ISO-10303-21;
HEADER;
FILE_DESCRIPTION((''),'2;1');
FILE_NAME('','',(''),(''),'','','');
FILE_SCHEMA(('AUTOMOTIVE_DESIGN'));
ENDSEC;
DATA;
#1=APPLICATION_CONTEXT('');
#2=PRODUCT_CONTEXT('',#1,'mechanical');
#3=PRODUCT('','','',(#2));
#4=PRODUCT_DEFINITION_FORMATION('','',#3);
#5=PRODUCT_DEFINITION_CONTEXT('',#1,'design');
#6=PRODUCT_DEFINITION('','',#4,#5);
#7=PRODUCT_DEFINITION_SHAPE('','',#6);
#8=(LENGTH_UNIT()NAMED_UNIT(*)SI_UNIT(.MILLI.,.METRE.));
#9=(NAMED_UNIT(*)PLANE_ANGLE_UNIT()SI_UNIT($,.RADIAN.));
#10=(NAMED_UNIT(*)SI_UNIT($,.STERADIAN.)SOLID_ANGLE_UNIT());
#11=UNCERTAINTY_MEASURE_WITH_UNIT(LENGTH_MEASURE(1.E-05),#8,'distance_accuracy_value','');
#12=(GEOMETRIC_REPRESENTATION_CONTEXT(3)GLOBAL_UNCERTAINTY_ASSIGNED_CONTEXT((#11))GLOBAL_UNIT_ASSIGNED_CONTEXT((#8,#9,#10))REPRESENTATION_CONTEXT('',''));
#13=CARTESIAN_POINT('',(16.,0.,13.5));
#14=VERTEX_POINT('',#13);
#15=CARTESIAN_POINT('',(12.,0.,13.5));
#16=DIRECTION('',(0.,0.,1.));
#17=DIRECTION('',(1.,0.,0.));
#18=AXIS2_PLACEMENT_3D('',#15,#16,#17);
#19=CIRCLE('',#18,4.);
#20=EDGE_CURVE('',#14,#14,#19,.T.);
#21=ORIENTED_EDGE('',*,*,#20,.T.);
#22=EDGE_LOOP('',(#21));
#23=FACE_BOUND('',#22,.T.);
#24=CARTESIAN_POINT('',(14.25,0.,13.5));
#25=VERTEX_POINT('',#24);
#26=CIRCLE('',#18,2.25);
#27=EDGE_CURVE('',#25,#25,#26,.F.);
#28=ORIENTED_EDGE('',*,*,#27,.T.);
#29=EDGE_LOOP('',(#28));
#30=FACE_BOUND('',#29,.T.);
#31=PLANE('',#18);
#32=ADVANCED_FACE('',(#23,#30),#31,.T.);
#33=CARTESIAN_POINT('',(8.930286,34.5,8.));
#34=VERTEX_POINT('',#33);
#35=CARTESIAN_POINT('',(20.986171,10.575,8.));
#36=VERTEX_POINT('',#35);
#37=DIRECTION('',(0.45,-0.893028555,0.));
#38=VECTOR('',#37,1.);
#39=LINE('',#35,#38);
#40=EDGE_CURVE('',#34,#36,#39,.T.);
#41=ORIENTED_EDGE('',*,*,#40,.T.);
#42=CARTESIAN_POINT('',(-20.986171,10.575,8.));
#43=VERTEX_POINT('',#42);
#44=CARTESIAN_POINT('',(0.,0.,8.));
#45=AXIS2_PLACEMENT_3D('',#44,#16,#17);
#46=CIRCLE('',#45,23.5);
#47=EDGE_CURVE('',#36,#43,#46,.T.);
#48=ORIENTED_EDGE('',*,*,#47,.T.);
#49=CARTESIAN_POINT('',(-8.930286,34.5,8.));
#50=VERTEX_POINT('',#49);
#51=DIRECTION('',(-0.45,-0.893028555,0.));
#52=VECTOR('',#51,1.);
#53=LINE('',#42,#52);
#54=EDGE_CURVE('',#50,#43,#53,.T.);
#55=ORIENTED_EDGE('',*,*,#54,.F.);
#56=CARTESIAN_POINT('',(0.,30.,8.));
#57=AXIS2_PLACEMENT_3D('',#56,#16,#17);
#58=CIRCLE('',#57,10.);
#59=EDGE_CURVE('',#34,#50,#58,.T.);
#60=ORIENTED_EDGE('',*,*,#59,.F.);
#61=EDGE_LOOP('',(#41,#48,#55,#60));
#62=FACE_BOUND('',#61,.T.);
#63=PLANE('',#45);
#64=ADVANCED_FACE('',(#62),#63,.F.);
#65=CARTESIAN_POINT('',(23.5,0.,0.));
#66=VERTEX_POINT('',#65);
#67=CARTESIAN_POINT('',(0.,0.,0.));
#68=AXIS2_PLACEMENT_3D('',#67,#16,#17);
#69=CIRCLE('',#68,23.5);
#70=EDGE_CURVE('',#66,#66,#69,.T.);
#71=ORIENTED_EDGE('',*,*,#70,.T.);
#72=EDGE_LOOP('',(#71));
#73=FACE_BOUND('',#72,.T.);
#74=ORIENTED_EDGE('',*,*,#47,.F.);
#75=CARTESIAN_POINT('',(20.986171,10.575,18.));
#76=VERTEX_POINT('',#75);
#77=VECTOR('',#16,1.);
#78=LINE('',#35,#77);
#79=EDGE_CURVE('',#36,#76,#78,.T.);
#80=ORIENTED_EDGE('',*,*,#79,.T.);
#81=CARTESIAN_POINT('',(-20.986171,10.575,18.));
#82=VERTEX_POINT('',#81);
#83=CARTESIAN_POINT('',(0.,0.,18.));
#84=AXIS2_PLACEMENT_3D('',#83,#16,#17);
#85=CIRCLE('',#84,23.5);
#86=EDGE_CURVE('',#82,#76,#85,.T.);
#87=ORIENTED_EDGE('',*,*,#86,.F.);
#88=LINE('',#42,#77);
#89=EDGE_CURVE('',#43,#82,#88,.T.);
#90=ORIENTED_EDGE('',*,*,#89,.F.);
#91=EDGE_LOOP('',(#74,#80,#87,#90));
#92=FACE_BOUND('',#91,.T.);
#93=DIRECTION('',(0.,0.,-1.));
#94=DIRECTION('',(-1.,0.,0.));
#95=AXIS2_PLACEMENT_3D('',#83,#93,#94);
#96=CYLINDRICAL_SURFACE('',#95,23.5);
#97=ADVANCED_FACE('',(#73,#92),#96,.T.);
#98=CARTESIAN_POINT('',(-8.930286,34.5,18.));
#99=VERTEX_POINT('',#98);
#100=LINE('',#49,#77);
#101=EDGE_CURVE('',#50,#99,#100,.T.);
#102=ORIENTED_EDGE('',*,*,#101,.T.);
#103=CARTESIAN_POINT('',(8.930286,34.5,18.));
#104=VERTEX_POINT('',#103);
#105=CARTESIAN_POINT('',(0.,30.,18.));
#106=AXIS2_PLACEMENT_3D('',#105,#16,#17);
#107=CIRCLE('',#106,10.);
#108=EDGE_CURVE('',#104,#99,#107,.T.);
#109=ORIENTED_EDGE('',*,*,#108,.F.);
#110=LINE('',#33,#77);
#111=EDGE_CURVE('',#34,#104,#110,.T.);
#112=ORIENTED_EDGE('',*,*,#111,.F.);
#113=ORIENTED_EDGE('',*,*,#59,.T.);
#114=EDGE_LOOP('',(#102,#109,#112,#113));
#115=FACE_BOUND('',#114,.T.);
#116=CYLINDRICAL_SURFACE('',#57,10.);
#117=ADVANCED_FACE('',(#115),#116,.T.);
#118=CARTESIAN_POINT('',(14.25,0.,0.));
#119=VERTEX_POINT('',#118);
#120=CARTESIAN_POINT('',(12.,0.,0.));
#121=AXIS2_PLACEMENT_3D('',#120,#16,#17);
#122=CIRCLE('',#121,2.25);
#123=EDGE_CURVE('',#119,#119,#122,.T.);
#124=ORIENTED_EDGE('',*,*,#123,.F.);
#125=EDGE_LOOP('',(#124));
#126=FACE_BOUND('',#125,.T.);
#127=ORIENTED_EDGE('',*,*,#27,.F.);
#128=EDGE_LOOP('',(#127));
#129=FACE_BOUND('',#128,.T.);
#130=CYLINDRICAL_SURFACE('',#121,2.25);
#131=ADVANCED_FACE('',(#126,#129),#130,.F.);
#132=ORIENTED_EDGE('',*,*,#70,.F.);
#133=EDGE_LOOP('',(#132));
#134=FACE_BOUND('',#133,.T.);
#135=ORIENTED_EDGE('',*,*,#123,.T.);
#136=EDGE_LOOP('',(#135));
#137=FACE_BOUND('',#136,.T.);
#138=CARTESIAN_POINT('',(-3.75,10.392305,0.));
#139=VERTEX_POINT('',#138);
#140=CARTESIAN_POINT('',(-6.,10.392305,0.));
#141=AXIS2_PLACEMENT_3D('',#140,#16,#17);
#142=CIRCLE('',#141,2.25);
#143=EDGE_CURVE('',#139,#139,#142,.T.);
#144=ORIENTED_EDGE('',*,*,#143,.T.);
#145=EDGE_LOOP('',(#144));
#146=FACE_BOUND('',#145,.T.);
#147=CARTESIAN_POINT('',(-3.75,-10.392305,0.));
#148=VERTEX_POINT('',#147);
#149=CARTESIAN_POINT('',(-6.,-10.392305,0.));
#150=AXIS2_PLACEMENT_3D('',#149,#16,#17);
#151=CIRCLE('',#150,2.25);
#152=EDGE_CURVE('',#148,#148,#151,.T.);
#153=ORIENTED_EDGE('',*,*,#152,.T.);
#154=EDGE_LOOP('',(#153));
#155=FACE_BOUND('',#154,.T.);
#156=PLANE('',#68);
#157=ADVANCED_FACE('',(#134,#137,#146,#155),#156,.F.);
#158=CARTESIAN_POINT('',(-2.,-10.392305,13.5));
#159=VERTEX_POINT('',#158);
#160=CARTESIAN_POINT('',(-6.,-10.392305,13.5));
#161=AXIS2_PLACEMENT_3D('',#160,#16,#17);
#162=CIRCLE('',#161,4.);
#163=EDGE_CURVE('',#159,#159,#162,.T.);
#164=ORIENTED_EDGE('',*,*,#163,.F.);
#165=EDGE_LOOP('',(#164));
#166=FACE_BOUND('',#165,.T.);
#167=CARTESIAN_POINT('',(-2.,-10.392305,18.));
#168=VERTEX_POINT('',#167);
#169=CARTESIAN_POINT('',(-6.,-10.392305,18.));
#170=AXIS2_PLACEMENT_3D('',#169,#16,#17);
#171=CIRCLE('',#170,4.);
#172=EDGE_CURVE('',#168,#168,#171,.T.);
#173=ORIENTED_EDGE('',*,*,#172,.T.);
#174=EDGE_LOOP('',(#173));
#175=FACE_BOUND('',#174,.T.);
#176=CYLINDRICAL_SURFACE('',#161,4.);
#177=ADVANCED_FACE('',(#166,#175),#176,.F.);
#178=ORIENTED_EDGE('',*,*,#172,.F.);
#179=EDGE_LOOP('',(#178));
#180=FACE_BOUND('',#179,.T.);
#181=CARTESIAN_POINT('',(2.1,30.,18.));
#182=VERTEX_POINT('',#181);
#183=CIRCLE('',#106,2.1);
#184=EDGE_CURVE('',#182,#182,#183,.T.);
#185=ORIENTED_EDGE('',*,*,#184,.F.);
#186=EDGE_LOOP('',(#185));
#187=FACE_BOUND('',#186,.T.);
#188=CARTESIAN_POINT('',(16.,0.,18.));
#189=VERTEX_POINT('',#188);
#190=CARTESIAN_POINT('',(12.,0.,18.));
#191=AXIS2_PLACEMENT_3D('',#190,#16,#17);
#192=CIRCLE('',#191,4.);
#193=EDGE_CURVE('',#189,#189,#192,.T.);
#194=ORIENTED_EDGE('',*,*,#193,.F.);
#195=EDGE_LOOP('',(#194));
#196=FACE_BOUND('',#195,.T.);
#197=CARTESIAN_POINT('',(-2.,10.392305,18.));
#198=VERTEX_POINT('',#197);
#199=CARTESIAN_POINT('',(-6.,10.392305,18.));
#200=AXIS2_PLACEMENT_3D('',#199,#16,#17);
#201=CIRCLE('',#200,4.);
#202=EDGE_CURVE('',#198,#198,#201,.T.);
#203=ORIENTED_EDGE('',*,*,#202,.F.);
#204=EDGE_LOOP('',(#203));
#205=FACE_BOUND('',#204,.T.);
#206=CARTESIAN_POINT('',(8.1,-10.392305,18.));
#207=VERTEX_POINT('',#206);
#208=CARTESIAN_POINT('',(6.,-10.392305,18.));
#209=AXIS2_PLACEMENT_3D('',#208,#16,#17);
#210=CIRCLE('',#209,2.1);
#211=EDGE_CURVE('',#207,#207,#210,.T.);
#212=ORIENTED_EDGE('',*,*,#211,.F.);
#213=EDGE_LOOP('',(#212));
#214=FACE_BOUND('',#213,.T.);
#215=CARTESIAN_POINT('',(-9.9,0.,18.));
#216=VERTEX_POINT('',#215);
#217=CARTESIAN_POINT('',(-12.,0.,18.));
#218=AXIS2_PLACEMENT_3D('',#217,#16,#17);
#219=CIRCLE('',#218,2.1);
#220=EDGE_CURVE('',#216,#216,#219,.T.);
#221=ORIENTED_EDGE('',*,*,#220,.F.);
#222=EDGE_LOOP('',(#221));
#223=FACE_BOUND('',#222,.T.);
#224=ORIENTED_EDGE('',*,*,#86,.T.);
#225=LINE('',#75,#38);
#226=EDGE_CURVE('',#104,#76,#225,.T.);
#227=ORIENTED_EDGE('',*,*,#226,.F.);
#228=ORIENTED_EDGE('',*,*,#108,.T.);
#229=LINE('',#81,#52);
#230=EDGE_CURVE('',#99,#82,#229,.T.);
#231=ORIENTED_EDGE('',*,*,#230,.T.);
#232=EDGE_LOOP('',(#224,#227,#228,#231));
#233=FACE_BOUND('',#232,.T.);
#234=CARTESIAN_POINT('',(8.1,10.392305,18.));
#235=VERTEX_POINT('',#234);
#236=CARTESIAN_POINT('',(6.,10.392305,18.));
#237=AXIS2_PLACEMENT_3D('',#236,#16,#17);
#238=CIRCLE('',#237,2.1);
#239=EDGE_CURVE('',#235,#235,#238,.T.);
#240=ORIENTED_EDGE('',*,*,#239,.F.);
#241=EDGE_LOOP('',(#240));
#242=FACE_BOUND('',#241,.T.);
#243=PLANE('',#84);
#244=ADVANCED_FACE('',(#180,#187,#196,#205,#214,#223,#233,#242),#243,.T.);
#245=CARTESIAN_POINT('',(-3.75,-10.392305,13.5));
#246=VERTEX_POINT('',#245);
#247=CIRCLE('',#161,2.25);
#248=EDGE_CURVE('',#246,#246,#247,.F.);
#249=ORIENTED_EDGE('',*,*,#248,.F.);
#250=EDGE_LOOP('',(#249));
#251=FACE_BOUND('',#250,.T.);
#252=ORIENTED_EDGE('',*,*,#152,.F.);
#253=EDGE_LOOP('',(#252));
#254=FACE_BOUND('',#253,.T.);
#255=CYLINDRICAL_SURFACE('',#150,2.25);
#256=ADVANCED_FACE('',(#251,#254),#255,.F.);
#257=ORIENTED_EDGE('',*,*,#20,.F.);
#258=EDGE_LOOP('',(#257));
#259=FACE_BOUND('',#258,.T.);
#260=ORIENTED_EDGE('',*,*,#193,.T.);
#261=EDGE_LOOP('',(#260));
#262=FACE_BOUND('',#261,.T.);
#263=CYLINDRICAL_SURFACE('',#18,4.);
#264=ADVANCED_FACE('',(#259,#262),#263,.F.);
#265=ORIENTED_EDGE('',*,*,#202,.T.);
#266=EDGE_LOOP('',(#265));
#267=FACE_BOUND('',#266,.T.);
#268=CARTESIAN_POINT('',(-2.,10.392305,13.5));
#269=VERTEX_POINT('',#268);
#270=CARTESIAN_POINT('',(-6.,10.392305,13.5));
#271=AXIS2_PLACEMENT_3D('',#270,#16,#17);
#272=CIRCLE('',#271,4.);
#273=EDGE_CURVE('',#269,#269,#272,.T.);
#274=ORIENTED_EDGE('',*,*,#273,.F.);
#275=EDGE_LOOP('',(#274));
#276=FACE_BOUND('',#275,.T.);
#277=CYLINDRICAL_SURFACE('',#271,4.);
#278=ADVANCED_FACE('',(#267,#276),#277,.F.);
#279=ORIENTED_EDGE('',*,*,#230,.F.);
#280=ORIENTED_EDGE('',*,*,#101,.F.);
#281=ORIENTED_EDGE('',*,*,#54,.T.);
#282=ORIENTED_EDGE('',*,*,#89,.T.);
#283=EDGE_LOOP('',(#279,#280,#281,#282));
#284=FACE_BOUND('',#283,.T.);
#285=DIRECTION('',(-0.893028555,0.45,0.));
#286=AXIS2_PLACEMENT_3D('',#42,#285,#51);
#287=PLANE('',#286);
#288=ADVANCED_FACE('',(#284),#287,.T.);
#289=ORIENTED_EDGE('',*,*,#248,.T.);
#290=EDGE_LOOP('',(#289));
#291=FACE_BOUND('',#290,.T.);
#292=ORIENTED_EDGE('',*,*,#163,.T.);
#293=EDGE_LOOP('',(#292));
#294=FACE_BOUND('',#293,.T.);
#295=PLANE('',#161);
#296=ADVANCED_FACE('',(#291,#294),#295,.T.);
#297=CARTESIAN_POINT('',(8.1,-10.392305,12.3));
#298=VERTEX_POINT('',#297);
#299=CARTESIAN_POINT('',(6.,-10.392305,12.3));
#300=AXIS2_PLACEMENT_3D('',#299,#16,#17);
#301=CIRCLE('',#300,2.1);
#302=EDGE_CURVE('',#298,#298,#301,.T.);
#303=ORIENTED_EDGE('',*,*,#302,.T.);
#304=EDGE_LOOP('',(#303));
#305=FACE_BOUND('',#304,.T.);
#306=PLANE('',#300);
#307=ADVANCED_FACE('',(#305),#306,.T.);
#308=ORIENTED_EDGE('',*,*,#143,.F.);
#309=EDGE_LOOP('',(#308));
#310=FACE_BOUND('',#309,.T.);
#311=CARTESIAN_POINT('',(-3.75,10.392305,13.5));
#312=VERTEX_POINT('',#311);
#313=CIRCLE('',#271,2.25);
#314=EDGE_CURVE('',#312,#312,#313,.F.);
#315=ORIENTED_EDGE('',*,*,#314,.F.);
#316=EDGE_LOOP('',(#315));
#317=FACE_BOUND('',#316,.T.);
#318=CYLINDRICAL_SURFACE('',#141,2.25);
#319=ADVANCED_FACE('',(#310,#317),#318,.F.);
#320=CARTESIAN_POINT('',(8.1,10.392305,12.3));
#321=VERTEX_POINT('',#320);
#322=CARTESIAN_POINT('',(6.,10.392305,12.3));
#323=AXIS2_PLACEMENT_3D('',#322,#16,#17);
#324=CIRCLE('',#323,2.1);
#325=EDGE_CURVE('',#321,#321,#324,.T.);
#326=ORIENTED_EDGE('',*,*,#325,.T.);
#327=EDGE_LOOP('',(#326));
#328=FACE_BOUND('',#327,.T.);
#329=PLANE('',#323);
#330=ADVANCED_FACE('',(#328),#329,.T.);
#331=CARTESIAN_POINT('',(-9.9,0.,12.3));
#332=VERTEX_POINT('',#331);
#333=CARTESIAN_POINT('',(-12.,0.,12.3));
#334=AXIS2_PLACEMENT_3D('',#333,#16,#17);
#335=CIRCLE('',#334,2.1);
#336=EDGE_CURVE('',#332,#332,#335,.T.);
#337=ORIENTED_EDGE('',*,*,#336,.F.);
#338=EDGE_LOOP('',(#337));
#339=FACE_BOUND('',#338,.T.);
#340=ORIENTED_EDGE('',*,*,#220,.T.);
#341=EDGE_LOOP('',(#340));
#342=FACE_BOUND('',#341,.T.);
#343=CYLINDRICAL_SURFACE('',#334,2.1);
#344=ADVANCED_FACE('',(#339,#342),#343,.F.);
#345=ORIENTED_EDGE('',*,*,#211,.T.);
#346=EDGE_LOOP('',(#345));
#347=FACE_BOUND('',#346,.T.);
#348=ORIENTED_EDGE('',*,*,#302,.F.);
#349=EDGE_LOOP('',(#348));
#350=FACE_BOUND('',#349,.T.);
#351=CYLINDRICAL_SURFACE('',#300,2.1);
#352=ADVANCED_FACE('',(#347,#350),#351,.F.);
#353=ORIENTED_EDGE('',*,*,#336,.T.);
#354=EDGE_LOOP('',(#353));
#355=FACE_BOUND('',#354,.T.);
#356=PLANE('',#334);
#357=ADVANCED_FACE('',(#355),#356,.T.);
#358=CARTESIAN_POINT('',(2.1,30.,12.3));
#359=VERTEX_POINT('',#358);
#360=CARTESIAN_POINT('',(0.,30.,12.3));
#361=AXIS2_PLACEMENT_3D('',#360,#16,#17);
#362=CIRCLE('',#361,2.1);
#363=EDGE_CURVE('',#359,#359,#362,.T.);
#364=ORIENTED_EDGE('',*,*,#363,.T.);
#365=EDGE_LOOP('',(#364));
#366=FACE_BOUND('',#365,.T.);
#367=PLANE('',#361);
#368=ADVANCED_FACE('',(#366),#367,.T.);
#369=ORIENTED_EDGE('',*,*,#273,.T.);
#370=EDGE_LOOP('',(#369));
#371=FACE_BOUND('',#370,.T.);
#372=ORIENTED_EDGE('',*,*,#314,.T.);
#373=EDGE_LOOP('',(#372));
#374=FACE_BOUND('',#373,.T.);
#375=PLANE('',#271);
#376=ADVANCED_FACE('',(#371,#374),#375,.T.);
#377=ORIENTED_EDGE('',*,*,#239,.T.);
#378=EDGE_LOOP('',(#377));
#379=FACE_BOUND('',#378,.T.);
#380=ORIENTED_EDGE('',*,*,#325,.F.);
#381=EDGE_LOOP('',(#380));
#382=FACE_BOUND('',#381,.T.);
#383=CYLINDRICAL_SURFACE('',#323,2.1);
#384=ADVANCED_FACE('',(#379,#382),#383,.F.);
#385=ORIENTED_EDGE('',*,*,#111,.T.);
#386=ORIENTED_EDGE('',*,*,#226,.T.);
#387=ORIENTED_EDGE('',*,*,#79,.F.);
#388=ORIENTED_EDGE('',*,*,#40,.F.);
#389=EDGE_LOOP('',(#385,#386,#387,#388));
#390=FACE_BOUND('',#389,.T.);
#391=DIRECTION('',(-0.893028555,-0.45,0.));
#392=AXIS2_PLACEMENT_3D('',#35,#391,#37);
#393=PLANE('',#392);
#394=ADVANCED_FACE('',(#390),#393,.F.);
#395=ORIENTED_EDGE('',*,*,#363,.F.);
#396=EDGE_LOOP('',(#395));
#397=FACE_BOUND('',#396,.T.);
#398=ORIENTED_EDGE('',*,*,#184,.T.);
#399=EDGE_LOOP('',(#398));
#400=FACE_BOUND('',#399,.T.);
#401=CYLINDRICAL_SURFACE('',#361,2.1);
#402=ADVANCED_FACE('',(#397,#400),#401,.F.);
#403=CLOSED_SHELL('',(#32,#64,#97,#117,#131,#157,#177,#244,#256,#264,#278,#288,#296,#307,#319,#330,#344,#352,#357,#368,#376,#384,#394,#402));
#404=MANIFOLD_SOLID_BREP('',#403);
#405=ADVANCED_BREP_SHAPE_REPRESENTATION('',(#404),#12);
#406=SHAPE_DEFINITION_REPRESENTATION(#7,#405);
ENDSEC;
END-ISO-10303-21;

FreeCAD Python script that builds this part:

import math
import FreeCAD as App
import Part
import Sketcher
from FreeCAD import Vector
Q = App.Units.Quantity

doc = App.newDocument("Part")
body = doc.addObject("PartDesign::Body", "Body")

# Sketch on XY plane
sketch1 = body.newObject("Sketcher::SketchObject", "Sketch")
sketch1.AttachmentSupport = (doc.getObject("XY_Plane"), [""])
sketch1.MapMode = "FlatFace"
sketch1.addGeometry(Part.Circle(Vector(0, 0, 0), Vector(0, 0, 1), 24), False)
sketch1.addConstraint([
    Sketcher.Constraint("Coincident", 0, 3, -1, 1),
    Sketcher.Constraint("Diameter", 0, Q("47 mm")),
])
pad1 = body.newObject("PartDesign::Pad", "Pad")
pad1.Profile = sketch1
pad1.Length = 18

# Sketch on XY plane
sketch2 = body.newObject("Sketcher::SketchObject", "Sketch001")
sketch2.AttachmentSupport = (doc.getObject("XY_Plane"), [""])
sketch2.MapMode = "FlatFace"
sketch2.AttachmentOffset = App.Placement(Vector(0, 0, 8), App.Rotation())
sketch2.addGeometry([
    Part.ArcOfCircle(Part.Circle(Vector(0, 0, 0), Vector(0, 0, 1), 24), math.radians(27), math.radians(90)),  # 0
    Part.LineSegment(Vector(21, 11, 0), Vector(9, 34, 0)),  # 1
    Part.ArcOfCircle(Part.Circle(Vector(0, 30, 0), Vector(0, 0, 1), 10), math.radians(27), math.radians(153)),  # 2
    Part.LineSegment(Vector(-9, 34, 0), Vector(-21, 11, 0)),  # 3
    Part.ArcOfCircle(Part.Circle(Vector(0, 0, 0), Vector(0, 0, 1), 24), math.radians(90), math.radians(153)),  # 4
], False)
sketch2.addConstraint([
    Sketcher.Constraint("Tangent", 0, 1, 1, 1),
    Sketcher.Constraint("Tangent", 1, 2, 2, 1),
    Sketcher.Constraint("Tangent", 2, 2, 3, 1),
    Sketcher.Constraint("Tangent", 3, 2, 4, 2),
    Sketcher.Constraint("Tangent", 4, 1, 0, 2),
    Sketcher.Constraint("Coincident", 0, 3, -1, 1),
    Sketcher.Constraint("Equal", 0, 4),
    Sketcher.Constraint("PointOnObject", 2, 3, -2),
    Sketcher.Constraint("PointOnObject", 4, 1, -2),
    Sketcher.Constraint("Radius", 2, Q("10 mm")),
    Sketcher.Constraint("Radius", 0, Q("23.5 mm")),
    Sketcher.Constraint("DistanceY", -1, 1, 2, 3, Q("30 mm")),
])
pad2 = body.newObject("PartDesign::Pad", "Pad001")
pad2.Profile = sketch2
pad2.Length = 10

# Sketch on XY plane
sketch3 = body.newObject("Sketcher::SketchObject", "Sketch002")
sketch3.AttachmentSupport = (doc.getObject("XY_Plane"), [""])
sketch3.MapMode = "FlatFace"
sketch3.AttachmentOffset = App.Placement(Vector(0, 0, 18), App.Rotation())
sketch3.addGeometry([
    Part.Circle(Vector(12, 0, 0), Vector(0, 0, 1), 2.2),
    Part.Circle(Vector(-6, -10.4, 0), Vector(0, 0, 1), 2.2),
    Part.Circle(Vector(-6, 10.4, 0), Vector(0, 0, 1), 2.2),
], False)
sketch3.addConstraint([
    Sketcher.Constraint("Equal", 0, 1),
    Sketcher.Constraint("Equal", 1, 2),
    Sketcher.Constraint("Symmetric", 1, 3, 2, 3, -1),
    Sketcher.Constraint("PointOnObject", 0, 3, -1),
    Sketcher.Constraint("Diameter", 0, Q("4.5 mm")),
    Sketcher.Constraint("DistanceX", -1, 1, 0, 3, Q("12 mm")),
    Sketcher.Constraint("DistanceX", 1, 3, -1, 1, Q("6 mm")),
    Sketcher.Constraint("DistanceY", 1, 3, 2, 3, Q("20.78461 mm")),
])
pocket1 = body.newObject("PartDesign::Pocket", "Pocket")
pocket1.Profile = sketch3
pocket1.Type = "ThroughAll"

# Sketch on XY plane
sketch4 = body.newObject("Sketcher::SketchObject", "Sketch003")
sketch4.AttachmentSupport = (doc.getObject("XY_Plane"), [""])
sketch4.MapMode = "FlatFace"
sketch4.AttachmentOffset = App.Placement(Vector(0, 0, 18), App.Rotation())
sketch4.addGeometry([
    Part.Circle(Vector(-6, 10.4, 0), Vector(0, 0, 1), 4),
    Part.Circle(Vector(12, 0, 0), Vector(0, 0, 1), 4),
    Part.Circle(Vector(-6, -10.4, 0), Vector(0, 0, 1), 4),
], False)
sketch4.addConstraint([
    Sketcher.Constraint("Equal", 0, 1),
    Sketcher.Constraint("Equal", 1, 2),
    Sketcher.Constraint("Symmetric", 0, 3, 2, 3, -1),
    Sketcher.Constraint("PointOnObject", 1, 3, -1),
    Sketcher.Constraint("Diameter", 0, Q("8 mm")),
    Sketcher.Constraint("DistanceX", 0, 3, -1, 1, Q("6 mm")),
    Sketcher.Constraint("DistanceX", -1, 1, 1, 3, Q("12 mm")),
    Sketcher.Constraint("DistanceY", 2, 3, 0, 3, Q("20.78461 mm")),
])
pocket2 = body.newObject("PartDesign::Pocket", "Pocket001")
pocket2.Profile = sketch4
pocket2.Length = 4.5

# Sketch on XY plane
sketch5 = body.newObject("Sketcher::SketchObject", "Sketch004")
sketch5.AttachmentSupport = (doc.getObject("XY_Plane"), [""])
sketch5.MapMode = "FlatFace"
sketch5.AttachmentOffset = App.Placement(Vector(0, 0, 18), App.Rotation())
sketch5.addGeometry([
    Part.Circle(Vector(0, 30, 0), Vector(0, 0, 1), 2.1),  # 0
    Part.Circle(Vector(12, 0, 0), Vector(0, 0, 1), 2.1),  # 1
    Part.Circle(Vector(6, -10.4, 0), Vector(0, 0, 1), 2.1),  # 2
    Part.Circle(Vector(-6, -10.4, 0), Vector(0, 0, 1), 2.1),  # 3
    Part.Circle(Vector(-12, 0, 0), Vector(0, 0, 1), 2.1),  # 4
    Part.Circle(Vector(-6, 10.4, 0), Vector(0, 0, 1), 2.1),  # 5
    Part.Circle(Vector(6, 10.4, 0), Vector(0, 0, 1), 2.1),  # 6
], False)
sketch5.addConstraint([
    Sketcher.Constraint("Equal", 0, 1),
    Sketcher.Constraint("Equal", 1, 2),
    Sketcher.Constraint("Equal", 2, 3),
    Sketcher.Constraint("Equal", 3, 4),
    Sketcher.Constraint("Equal", 4, 5),
    Sketcher.Constraint("Equal", 5, 6),
    Sketcher.Constraint("Symmetric", 1, 3, 4, 3, -1, 1),
    Sketcher.Constraint("Symmetric", 2, 3, 5, 3, -1, 1),
    Sketcher.Constraint("Symmetric", 3, 3, 6, 3, -1, 1),
    Sketcher.Constraint("Symmetric", 2, 3, 3, 3, -2),
    Sketcher.Constraint("PointOnObject", 0, 3, -2),
    Sketcher.Constraint("PointOnObject", 1, 3, -1),
    Sketcher.Constraint("Diameter", 0, Q("4.2 mm")),
    Sketcher.Constraint("DistanceY", -1, 1, 0, 3, Q("30 mm")),
    Sketcher.Constraint("DistanceX", -1, 1, 1, 3, Q("12 mm")),
    Sketcher.Constraint("DistanceX", -1, 1, 2, 3, Q("6 mm")),
    Sketcher.Constraint("DistanceY", 3, 3, 5, 3, Q("20.78461 mm")),
])
pocket3 = body.newObject("PartDesign::Pocket", "Pocket002")
pocket3.Profile = sketch5
pocket3.Length = 5.7

doc.recompute()
